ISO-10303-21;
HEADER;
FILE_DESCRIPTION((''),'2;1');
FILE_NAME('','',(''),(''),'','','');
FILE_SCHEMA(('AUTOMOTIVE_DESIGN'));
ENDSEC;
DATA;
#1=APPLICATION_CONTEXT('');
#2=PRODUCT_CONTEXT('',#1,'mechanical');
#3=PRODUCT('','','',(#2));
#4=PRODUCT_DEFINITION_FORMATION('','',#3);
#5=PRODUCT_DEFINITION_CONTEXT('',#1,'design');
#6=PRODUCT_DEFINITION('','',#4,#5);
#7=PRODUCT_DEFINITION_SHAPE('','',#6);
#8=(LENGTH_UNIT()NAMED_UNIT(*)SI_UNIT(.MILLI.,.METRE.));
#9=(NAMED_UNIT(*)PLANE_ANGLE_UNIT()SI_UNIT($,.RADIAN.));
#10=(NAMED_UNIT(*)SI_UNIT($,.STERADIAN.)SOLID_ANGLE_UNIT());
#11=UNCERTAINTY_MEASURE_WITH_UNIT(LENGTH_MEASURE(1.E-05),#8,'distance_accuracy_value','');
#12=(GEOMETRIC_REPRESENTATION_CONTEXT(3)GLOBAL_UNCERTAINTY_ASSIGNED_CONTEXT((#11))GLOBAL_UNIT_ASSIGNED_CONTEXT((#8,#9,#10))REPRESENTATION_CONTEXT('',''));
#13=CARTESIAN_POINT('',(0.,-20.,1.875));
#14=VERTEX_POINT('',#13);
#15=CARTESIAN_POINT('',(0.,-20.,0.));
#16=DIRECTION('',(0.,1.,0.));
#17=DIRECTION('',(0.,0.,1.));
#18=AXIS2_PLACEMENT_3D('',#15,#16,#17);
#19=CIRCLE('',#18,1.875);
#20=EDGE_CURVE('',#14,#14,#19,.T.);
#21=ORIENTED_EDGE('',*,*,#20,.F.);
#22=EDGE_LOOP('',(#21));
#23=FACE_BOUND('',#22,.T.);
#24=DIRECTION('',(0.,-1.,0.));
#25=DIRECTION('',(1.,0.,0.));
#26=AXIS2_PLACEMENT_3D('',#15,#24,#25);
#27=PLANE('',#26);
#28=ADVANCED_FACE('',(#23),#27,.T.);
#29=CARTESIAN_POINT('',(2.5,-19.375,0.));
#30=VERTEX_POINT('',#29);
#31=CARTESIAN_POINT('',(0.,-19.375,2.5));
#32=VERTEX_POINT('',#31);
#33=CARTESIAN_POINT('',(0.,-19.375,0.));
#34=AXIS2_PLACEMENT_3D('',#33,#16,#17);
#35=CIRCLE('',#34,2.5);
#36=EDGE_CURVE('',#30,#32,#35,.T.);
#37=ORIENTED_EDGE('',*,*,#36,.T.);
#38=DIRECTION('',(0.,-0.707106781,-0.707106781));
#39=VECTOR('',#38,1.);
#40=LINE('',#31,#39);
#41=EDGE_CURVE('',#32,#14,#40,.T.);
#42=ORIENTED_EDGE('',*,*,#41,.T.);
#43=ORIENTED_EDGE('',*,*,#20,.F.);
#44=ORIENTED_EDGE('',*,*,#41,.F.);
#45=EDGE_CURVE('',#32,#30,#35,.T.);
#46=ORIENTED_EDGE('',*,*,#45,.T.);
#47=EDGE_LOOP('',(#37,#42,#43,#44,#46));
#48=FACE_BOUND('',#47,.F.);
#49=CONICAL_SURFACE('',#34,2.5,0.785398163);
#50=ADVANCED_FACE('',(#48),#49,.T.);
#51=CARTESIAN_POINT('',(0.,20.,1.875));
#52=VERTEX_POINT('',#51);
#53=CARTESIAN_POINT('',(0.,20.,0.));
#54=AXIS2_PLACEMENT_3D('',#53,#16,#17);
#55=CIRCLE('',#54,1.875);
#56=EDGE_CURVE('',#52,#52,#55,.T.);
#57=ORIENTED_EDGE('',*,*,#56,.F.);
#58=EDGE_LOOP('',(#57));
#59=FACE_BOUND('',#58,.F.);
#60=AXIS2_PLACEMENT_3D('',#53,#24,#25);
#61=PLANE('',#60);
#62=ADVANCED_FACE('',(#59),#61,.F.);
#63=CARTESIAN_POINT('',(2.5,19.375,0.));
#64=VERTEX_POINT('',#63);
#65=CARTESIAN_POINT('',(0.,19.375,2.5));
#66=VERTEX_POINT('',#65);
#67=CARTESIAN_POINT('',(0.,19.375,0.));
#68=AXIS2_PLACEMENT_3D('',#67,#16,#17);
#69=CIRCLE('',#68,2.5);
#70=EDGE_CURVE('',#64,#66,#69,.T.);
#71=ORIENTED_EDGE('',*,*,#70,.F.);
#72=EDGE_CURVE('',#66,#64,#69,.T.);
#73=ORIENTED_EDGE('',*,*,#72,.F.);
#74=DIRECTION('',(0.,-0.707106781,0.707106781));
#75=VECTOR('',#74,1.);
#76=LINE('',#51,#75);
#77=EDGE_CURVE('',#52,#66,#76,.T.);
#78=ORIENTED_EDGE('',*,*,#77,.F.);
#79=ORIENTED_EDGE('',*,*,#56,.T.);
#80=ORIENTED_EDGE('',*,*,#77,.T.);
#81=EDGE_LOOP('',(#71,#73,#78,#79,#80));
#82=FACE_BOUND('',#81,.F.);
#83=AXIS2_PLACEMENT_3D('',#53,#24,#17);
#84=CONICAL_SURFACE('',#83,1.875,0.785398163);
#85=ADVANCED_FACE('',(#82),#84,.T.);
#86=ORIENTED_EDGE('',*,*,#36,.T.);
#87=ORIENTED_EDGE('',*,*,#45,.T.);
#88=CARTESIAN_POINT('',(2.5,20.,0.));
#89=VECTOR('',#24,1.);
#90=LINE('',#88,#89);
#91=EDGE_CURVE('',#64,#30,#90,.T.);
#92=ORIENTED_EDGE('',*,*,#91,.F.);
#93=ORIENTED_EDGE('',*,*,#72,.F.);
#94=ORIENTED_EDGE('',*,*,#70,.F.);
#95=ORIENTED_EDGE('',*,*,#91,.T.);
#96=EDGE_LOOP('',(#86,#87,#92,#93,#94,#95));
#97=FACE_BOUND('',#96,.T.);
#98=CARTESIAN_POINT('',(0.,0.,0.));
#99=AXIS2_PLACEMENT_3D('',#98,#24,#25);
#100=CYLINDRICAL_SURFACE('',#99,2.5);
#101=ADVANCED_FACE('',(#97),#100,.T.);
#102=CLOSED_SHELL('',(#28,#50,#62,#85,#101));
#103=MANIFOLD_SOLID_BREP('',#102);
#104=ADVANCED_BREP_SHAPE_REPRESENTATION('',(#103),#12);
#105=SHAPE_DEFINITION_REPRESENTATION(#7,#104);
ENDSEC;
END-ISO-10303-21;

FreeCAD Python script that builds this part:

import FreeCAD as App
import Part
import Sketcher

V = App.Vector
Q = App.Units.Quantity

doc = App.newDocument("Part")
body = doc.addObject("PartDesign::Body", "Body")

sketch1 = body.newObject("Sketcher::SketchObject", "Sketch")
sketch1.AttachmentSupport = (doc.getObject("XZ_Plane"), [""])
sketch1.MapMode = "FlatFace"
sketch1.addGeometry(Part.Circle(V(0, 0, 0), V(0, 0, 1), 2.5), False)
sketch1.addConstraint([
    Sketcher.Constraint("Coincident", 0, 3, -1, 1),
    Sketcher.Constraint("Diameter", 0, Q("5 mm")),
])
pad1 = body.newObject("PartDesign::Pad", "Pad")
pad1.Profile = sketch1
pad1.Length = 40
pad1.Midplane = True

sketch2 = body.newObject("Sketcher::SketchObject", "Sketch001")
sketch2.AttachmentSupport = (doc.getObject("YZ_Plane"), [""])
sketch2.MapMode = "FlatFace"
sketch2.addGeometry([
    Part.LineSegment(V(20, 4.5, 0), V(-20, 4.5, 0)),
    Part.LineSegment(V(-20, 4.5, 0), V(-20, 1.875, 0)),
    Part.LineSegment(V(-20, 1.875, 0), V(-19.375, 2.5, 0)),
    Part.LineSegment(V(-19.375, 2.5, 0), V(19.375, 2.5, 0)),
    Part.LineSegment(V(19.375, 2.5, 0), V(20, 1.875, 0)),
    Part.LineSegment(V(20, 1.875, 0), V(20, 4.5, 0)),
], False)
sketch2.addConstraint([
    Sketcher.Constraint("Coincident", 0, 2, 1, 1),
    Sketcher.Constraint("Coincident", 1, 2, 2, 1),
    Sketcher.Constraint("Coincident", 2, 2, 3, 1),
    Sketcher.Constraint("Coincident", 3, 2, 4, 1),
    Sketcher.Constraint("Coincident", 4, 2, 5, 1),
    Sketcher.Constraint("Coincident", 5, 2, 0, 1),
    Sketcher.Constraint("Horizontal", 0),
    Sketcher.Constraint("Vertical", 1),
    Sketcher.Constraint("Horizontal", 3),
    Sketcher.Constraint("Vertical", 5),
    Sketcher.Constraint("Symmetric", 1, 2, 4, 2, -2),
    Sketcher.Constraint("Perpendicular", 2, 4),
    Sketcher.Constraint("Equal", 2, 4),
    Sketcher.Constraint("DistanceX", 0, 2, 0, 1, Q("40 mm")),
    Sketcher.Constraint("DistanceY", 2, 2, 0, 2, Q("2 mm")),
    Sketcher.Constraint("DistanceX", 3, 1, 3, 2, Q("38.75 mm")),
    Sketcher.Constraint("DistanceY", -1, 1, 0, 2, Q("4.5 mm")),
])
groove = body.newObject("PartDesign::Groove", "Groove")
groove.Profile = sketch2
groove.ReferenceAxis = (sketch2, ["H_Axis"])
groove.Angle = 360

doc.recompute()
